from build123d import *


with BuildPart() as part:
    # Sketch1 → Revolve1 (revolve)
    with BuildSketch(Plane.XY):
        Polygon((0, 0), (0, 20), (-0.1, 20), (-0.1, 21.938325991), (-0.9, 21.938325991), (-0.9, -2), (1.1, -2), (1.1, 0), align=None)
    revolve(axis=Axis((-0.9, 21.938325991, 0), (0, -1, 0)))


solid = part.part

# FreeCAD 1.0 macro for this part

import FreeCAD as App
import Part
import Sketcher
from FreeCAD import Vector
Q = App.Units.Quantity


def add_polygon(sketch, points):
    """Adds a closed chain of lines whose ends are joined by coincident constraints."""
    first, n = sketch.GeometryCount, len(points)
    for a, b in zip(points, points[1:] + points[:1]):
        sketch.addGeometry(Part.LineSegment(App.Vector(*a, 0), App.Vector(*b, 0)), False)
    for i in range(n):
        sketch.addConstraint(Sketcher.Constraint("Coincident", first + i, 2, first + (i + 1) % n, 1))

doc = App.newDocument("Part")
body = doc.addObject("PartDesign::Body", "Body")

# Sketch on XY plane
sketch1 = body.newObject("Sketcher::SketchObject", "Sketch")
sketch1.AttachmentSupport = (doc.getObject("XY_Plane"), [""])
sketch1.MapMode = "FlatFace"
add_polygon(sketch1, [(0, 0), (0, 20), (-0.1, 20), (-0.1, 21.94), (-0.9, 21.94), (-0.9, -2), (1.1, -2), (1.1, 0)])  # lines 0-7
sketch1.addGeometry(Part.LineSegment(Vector(-0.9, 21.94, 0), Vector(-0.9, -2, 0)), True)  # axis
sketch1.addConstraint(Sketcher.Constraint("Vertical", 0))
sketch1.addConstraint(Sketcher.Constraint("Horizontal", 1))
sketch1.addConstraint(Sketcher.Constraint("Vertical", 2))
sketch1.addConstraint(Sketcher.Constraint("Horizontal", 3))
sketch1.addConstraint(Sketcher.Constraint("Vertical", 4))
sketch1.addConstraint(Sketcher.Constraint("Horizontal", 5))
sketch1.addConstraint(Sketcher.Constraint("Vertical", 6))
sketch1.addConstraint(Sketcher.Constraint("Horizontal", 7))
sketch1.addConstraint(Sketcher.Constraint("Vertical", 8))
sketch1.addConstraint(Sketcher.Constraint("Coincident", 7, 2, -1, 1))
sketch1.addConstraint(Sketcher.Constraint("Coincident", 8, 1, 3, 2))
sketch1.addConstraint(Sketcher.Constraint("Horizontal", 5, 2, 8, 2))
sketch1.addConstraint(Sketcher.Constraint("Equal", 5, 6))
sketch1.addConstraint(Sketcher.Constraint("DistanceX", 5, 1, 5, 2, Q("2 mm")))
sketch1.addConstraint(Sketcher.Constraint("DistanceY", 0, 1, 0, 2, Q("20 mm")))
sketch1.addConstraint(Sketcher.Constraint("DistanceX", 1, 2, 1, 1, Q("0.1 mm")))
sketch1.addConstraint(Sketcher.Constraint("DistanceX", 3, 2, 3, 1, Q("0.8 mm")))
sketch1.addConstraint(Sketcher.Constraint("DistanceY", 2, 1, 2, 2, Q("1.938326 mm")))
revolution = body.newObject("PartDesign::Revolution", "Revolution")
revolution.Profile = sketch1
revolution.ReferenceAxis = (sketch1, ["Axis0"])
revolution.Angle = 360

doc.recompute()
